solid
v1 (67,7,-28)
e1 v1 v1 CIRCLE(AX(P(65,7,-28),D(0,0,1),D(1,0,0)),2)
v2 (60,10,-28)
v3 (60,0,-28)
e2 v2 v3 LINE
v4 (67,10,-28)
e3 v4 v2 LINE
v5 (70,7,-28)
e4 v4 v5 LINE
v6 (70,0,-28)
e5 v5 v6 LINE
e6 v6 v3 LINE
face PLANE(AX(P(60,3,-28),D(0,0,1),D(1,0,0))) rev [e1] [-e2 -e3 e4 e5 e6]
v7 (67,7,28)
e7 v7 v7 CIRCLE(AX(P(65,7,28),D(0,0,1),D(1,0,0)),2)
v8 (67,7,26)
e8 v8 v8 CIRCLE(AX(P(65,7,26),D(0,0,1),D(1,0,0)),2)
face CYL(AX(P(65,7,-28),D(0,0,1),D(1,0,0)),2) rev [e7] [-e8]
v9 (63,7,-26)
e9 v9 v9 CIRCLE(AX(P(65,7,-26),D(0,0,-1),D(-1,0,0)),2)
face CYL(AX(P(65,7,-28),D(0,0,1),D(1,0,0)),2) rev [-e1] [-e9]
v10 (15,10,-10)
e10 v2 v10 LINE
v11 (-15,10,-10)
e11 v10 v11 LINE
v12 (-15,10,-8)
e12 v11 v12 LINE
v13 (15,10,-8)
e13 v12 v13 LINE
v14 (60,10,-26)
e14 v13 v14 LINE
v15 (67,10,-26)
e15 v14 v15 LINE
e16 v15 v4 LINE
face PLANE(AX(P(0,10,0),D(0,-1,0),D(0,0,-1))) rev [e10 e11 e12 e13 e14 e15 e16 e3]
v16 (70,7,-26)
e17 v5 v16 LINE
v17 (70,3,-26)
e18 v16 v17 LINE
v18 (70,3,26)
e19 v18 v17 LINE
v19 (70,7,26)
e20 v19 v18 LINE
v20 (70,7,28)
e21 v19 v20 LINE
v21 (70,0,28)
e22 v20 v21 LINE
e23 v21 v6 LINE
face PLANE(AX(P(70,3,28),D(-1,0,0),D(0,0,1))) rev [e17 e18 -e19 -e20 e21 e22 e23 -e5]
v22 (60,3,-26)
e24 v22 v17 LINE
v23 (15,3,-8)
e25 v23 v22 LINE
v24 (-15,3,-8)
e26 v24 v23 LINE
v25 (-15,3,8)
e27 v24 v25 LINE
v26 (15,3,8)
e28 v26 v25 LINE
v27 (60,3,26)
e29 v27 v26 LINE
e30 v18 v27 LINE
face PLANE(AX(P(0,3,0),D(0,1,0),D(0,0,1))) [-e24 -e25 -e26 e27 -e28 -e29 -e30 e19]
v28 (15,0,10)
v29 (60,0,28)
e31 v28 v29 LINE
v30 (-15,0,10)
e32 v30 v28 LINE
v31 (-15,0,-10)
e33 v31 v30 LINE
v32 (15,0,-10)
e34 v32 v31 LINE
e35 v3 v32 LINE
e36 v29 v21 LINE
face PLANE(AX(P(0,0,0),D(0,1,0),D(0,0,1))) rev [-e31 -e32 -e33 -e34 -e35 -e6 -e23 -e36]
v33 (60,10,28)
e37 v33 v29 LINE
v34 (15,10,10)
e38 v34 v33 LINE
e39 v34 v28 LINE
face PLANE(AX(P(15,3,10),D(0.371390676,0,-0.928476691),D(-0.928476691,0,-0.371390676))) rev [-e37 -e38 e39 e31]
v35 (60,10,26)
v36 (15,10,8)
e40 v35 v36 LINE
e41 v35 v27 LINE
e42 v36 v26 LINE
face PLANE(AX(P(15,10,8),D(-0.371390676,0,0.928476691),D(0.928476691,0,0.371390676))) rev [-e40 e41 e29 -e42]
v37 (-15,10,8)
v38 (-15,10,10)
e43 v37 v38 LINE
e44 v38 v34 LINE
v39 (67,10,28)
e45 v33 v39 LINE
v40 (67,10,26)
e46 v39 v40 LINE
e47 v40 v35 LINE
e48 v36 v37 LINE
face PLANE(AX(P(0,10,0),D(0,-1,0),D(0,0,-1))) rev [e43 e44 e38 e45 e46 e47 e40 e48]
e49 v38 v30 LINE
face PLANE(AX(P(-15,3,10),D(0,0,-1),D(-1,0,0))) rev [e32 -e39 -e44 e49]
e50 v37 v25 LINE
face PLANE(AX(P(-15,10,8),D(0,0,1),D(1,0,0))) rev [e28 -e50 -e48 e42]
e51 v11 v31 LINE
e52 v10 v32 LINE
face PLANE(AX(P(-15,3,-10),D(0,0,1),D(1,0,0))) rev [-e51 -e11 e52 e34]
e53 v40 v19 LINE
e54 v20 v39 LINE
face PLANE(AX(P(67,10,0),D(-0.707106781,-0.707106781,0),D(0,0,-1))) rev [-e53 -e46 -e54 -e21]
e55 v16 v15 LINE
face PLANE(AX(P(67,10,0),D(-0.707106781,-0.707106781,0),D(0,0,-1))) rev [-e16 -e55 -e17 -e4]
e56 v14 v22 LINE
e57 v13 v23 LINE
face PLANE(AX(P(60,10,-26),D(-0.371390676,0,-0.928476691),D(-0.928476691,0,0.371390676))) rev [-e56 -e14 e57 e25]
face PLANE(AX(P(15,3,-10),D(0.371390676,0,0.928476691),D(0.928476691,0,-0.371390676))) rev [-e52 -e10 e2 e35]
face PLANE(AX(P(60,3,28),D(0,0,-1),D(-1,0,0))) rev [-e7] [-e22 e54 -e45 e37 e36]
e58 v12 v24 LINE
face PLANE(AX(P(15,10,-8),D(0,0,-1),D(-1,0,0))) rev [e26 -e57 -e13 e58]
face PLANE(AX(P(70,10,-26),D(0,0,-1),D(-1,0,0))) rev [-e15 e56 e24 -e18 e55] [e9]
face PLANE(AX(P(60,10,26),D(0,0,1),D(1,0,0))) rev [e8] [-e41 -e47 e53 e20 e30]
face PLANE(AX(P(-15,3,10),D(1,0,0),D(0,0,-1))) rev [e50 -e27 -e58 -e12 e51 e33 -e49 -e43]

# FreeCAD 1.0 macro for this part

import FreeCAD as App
import Part
import Sketcher
from FreeCAD import Vector
Q = App.Units.Quantity


def edges_at(feature, points):
    """Names of the edges that pass closest to the given points."""
    edges = feature.Shape.Edges
    near = lambda p: min(range(len(edges)), key=lambda i: edges[i].distToShape(Part.Vertex(*p))[0])
    return sorted({f"Edge{near(p) + 1}" for p in points})

doc = App.newDocument("Part")
body = doc.addObject("PartDesign::Body", "Body")

# Sketch on XZ plane
sketch1 = body.newObject("Sketcher::SketchObject", "Sketch")
sketch1.AttachmentSupport = (doc.getObject("XZ_Plane"), [""])
sketch1.MapMode = "FlatFace"
sketch1.addGeometry([
    Part.LineSegment(Vector(-15, 10, 0), Vector(15, 10, 0)),  # 0
    Part.LineSegment(Vector(15, 10, 0), Vector(60, 28, 0)),  # 1
    Part.LineSegment(Vector(60, 28, 0), Vector(70, 28, 0)),  # 2
    Part.LineSegment(Vector(70, 28, 0), Vector(70, -28, 0)),  # 3
    Part.LineSegment(Vector(70, -28, 0), Vector(60, -28, 0)),  # 4
    Part.LineSegment(Vector(60, -28, 0), Vector(15, -10, 0)),  # 5
    Part.LineSegment(Vector(15, -10, 0), Vector(-15, -10, 0)),  # 6
    Part.LineSegment(Vector(-15, -10, 0), Vector(-15, 10, 0)),  # 7
], False)
sketch1.addConstraint([
    Sketcher.Constraint("Coincident", 0, 2, 1, 1),
    Sketcher.Constraint("Coincident", 1, 2, 2, 1),
    Sketcher.Constraint("Coincident", 2, 2, 3, 1),
    Sketcher.Constraint("Coincident", 3, 2, 4, 1),
    Sketcher.Constraint("Coincident", 4, 2, 5, 1),
    Sketcher.Constraint("Coincident", 5, 2, 6, 1),
    Sketcher.Constraint("Coincident", 6, 2, 7, 1),
    Sketcher.Constraint("Coincident", 7, 2, 0, 1),
    Sketcher.Constraint("Horizontal", 0),
    Sketcher.Constraint("Horizontal", 2),
    Sketcher.Constraint("Vertical", 3),
    Sketcher.Constraint("Horizontal", 4),
    Sketcher.Constraint("Horizontal", 6),
    Sketcher.Constraint("Vertical", 7),
    Sketcher.Constraint("Symmetric", 0, 2, 6, 2, -1, 1),
    Sketcher.Constraint("Symmetric", 1, 2, 4, 2, -1),
    Sketcher.Constraint("Vertical", 0, 2, 5, 2),
    Sketcher.Constraint("DistanceX", 0, 1, 0, 2, Q("30 mm")),
    Sketcher.Constraint("DistanceX", 2, 1, 2, 2, Q("10 mm")),
    Sketcher.Constraint("DistanceY", 3, 2, 3, 1, Q("56 mm")),
    Sketcher.Constraint("DistanceY", 7, 1, 7, 2, Q("20 mm")),
    Sketcher.Constraint("DistanceX", -1, 1, 1, 2, Q("60 mm")),
])
pad1 = body.newObject("PartDesign::Pad", "Pad")
pad1.Profile = sketch1
pad1.Length = 3
pad1.Reversed = True

# Sketch on XZ plane
sketch2 = body.newObject("Sketcher::SketchObject", "Sketch001")
sketch2.AttachmentSupport = (doc.getObject("XZ_Plane"), [""])
sketch2.MapMode = "FlatFace"
sketch2.AttachmentOffset = App.Placement(Vector(0, 0, -3), App.Rotation())
sketch2.addGeometry([
    Part.LineSegment(Vector(15, -10, 0), Vector(-15, -10, 0)),  # 0
    Part.LineSegment(Vector(-15, -10, 0), Vector(-15, -8, 0)),  # 1
    Part.LineSegment(Vector(-15, -8, 0), Vector(15, -8, 0)),  # 2
    Part.LineSegment(Vector(15, -8, 0), Vector(60, -26, 0)),  # 3
    Part.LineSegment(Vector(60, -26, 0), Vector(70, -26, 0)),  # 4
    Part.LineSegment(Vector(70, -26, 0), Vector(70, -28, 0)),  # 5
    Part.LineSegment(Vector(70, -28, 0), Vector(60, -28, 0)),  # 6
    Part.LineSegment(Vector(60, -28, 0), Vector(15, -10, 0)),  # 7
    Part.LineSegment(Vector(-15, 10, 0), Vector(15, 10, 0)),  # 8
    Part.LineSegment(Vector(15, 10, 0), Vector(60, 28, 0)),  # 9
    Part.LineSegment(Vector(60, 28, 0), Vector(70, 28, 0)),  # 10
    Part.LineSegment(Vector(70, 28, 0), Vector(70, 26, 0)),  # 11
    Part.LineSegment(Vector(70, 26, 0), Vector(60, 26, 0)),  # 12
    Part.LineSegment(Vector(60, 26, 0), Vector(15, 8, 0)),  # 13
    Part.LineSegment(Vector(15, 8, 0), Vector(-15, 8, 0)),  # 14
    Part.LineSegment(Vector(-15, 8, 0), Vector(-15, 10, 0)),  # 15
], False)
sketch2.addConstraint([
    Sketcher.Constraint("Coincident", 0, 2, 1, 1),
    Sketcher.Constraint("Coincident", 1, 2, 2, 1),
    Sketcher.Constraint("Coincident", 2, 2, 3, 1),
    Sketcher.Constraint("Coincident", 3, 2, 4, 1),
    Sketcher.Constraint("Coincident", 4, 2, 5, 1),
    Sketcher.Constraint("Coincident", 5, 2, 6, 1),
    Sketcher.Constraint("Coincident", 6, 2, 7, 1),
    Sketcher.Constraint("Coincident", 7, 2, 0, 1),
    Sketcher.Constraint("Coincident", 8, 2, 9, 1),
    Sketcher.Constraint("Coincident", 9, 2, 10, 1),
    Sketcher.Constraint("Coincident", 10, 2, 11, 1),
    Sketcher.Constraint("Coincident", 11, 2, 12, 1),
    Sketcher.Constraint("Coincident", 12, 2, 13, 1),
    Sketcher.Constraint("Coincident", 13, 2, 14, 1),
    Sketcher.Constraint("Coincident", 14, 2, 15, 1),
    Sketcher.Constraint("Coincident", 15, 2, 8, 1),
    Sketcher.Constraint("Horizontal", 0),
    Sketcher.Constraint("Vertical", 1),
    Sketcher.Constraint("Horizontal", 2),
    Sketcher.Constraint("Horizontal", 4),
    Sketcher.Constraint("Vertical", 5),
    Sketcher.Constraint("Horizontal", 6),
    Sketcher.Constraint("Horizontal", 8),
    Sketcher.Constraint("Horizontal", 10),
    Sketcher.Constraint("Vertical", 11),
    Sketcher.Constraint("Horizontal", 12),
    Sketcher.Constraint("Horizontal", 14),
    Sketcher.Constraint("Vertical", 15),
    Sketcher.Constraint("Symmetric", 0, 2, 8, 2, -1, 1),
    Sketcher.Constraint("Symmetric", 1, 2, 13, 2, -1, 1),
    Sketcher.Constraint("Symmetric", 6, 2, 9, 2, -1),
    Sketcher.Constraint("Symmetric", 4, 2, 11, 2, -1),
    Sketcher.Constraint("Parallel", 3, 7),
    Sketcher.Constraint("Parallel", 9, 13),
    Sketcher.Constraint("Vertical", 3, 2, 6, 2),
    Sketcher.Constraint("Vertical", 2, 2, 7, 2),
    Sketcher.Constraint("Vertical", 7, 2, 8, 2),
    Sketcher.Constraint("Vertical", 1, 2, 14, 2),
    Sketcher.Constraint("DistanceX", 0, 2, 0, 1, Q("30 mm")),
    Sketcher.Constraint("DistanceX", 4, 1, 4, 2, Q("10 mm")),
    Sketcher.Constraint("DistanceY", 1, 1, 1, 2, Q("2 mm")),
    Sketcher.Constraint("DistanceY", 0, 2, -1, 1, Q("10 mm")),
    Sketcher.Constraint("DistanceX", -1, 1, 3, 2, Q("60 mm")),
    Sketcher.Constraint("DistanceY", 3, 2, -1, 1, Q("26 mm")),
])
pad2 = body.newObject("PartDesign::Pad", "Pad001")
pad2.Profile = sketch2
pad2.Length = 7
pad2.Reversed = True

# Sketch on XY plane
sketch3 = body.newObject("Sketcher::SketchObject", "Sketch002")
sketch3.AttachmentSupport = (doc.getObject("XY_Plane"), [""])
sketch3.MapMode = "FlatFace"
sketch3.AttachmentOffset = App.Placement(Vector(0, 0, 28), App.Rotation())
sketch3.addGeometry(Part.Circle(Vector(65, 7, 0), Vector(0, 0, 1), 2), False)
sketch3.addConstraint([
    Sketcher.Constraint("Diameter", 0, Q("4 mm")),
    Sketcher.Constraint("DistanceX", -1, 1, 0, 3, Q("65 mm")),
    Sketcher.Constraint("DistanceY", -1, 1, 0, 3, Q("7 mm")),
])
pocket1 = body.newObject("PartDesign::Pocket", "Pocket")
pocket1.Profile = sketch3
pocket1.Type = "ThroughAll"
doc.recompute()

chamfer = body.newObject("PartDesign::Chamfer", "Chamfer")
chamfer.Base = (pocket1, edges_at(pocket1, [(70, 10, -27), (70, 10, 27)]))
chamfer.Size = 3

doc.recompute()
